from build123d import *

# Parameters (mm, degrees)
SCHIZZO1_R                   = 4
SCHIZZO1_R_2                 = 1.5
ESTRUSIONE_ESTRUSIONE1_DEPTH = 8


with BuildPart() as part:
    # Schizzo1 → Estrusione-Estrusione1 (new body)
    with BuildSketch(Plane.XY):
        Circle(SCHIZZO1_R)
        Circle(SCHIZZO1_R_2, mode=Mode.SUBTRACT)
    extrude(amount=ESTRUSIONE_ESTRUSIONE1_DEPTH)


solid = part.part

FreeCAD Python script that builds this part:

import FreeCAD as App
import Part
import Sketcher

V = App.Vector
Q = App.Units.Quantity

doc = App.newDocument("Part")
body = doc.addObject("PartDesign::Body", "Body")

# Sketch on XY plane
sketch1 = body.newObject("Sketcher::SketchObject", "Sketch")
sketch1.AttachmentSupport = (doc.getObject("XY_Plane"), [""])
sketch1.MapMode = "FlatFace"
sketch1.addGeometry([
    Part.Circle(V(0, 0, 0), V(0, 0, 1), 4),
    Part.Circle(V(0, 0, 0), V(0, 0, 1), 1.5),
], False)
sketch1.addConstraint([
    Sketcher.Constraint("Coincident", 0, 3, -1, 1),
    Sketcher.Constraint("Coincident", 1, 3, -1, 1),
    Sketcher.Constraint("Diameter", 0, Q("8 mm")),
    Sketcher.Constraint("Diameter", 1, Q("3 mm")),
])
pad1 = body.newObject("PartDesign::Pad", "Pad")
pad1.Profile = sketch1
pad1.Length = 8

doc.recompute()
